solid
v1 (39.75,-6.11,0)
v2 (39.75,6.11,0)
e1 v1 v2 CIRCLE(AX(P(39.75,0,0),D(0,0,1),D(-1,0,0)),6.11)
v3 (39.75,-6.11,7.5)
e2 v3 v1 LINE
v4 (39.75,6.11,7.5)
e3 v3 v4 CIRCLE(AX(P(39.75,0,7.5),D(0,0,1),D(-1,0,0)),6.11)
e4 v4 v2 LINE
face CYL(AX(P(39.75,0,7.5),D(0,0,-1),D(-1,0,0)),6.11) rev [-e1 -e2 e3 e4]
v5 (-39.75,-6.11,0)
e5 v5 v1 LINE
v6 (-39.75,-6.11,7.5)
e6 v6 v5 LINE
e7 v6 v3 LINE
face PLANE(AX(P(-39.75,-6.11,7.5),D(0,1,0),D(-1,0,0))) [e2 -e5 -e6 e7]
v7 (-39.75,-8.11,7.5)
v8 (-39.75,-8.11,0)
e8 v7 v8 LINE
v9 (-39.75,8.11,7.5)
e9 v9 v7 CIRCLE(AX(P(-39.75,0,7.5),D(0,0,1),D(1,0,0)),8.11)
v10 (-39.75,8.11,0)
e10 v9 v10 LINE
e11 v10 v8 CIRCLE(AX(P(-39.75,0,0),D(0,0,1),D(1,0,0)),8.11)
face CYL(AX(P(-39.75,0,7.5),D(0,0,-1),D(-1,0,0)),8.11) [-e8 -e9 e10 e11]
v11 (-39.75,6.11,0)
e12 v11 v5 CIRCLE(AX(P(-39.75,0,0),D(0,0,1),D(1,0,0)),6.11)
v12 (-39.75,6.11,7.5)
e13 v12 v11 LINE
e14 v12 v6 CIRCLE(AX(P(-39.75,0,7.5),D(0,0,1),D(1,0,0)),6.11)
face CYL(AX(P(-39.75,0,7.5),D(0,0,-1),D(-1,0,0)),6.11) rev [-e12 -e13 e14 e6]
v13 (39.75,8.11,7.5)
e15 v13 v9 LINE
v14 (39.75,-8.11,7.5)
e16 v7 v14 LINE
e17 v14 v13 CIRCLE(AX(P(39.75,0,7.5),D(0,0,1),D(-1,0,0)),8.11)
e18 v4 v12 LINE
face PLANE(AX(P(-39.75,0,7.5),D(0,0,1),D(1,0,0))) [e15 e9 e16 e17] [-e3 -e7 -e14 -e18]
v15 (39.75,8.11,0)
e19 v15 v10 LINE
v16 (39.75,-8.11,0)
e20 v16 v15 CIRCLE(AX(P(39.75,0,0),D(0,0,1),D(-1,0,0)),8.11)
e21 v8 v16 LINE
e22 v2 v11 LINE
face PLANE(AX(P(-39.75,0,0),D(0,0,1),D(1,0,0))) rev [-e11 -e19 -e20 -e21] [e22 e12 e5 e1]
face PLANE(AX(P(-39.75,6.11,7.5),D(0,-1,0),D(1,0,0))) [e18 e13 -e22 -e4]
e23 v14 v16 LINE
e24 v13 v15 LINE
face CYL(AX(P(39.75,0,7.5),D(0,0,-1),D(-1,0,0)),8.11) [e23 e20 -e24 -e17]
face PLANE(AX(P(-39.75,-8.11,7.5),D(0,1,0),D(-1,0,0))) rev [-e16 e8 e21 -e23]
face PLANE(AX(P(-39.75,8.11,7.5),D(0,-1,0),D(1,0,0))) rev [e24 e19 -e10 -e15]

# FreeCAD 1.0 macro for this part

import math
import FreeCAD as App
import Part
import Sketcher

doc = App.newDocument("Part")
params = doc.addObject("Spreadsheet::Sheet", "Params")
for row, (alias, value) in enumerate([
    ("sketch1_radius", "8.11 mm"),
    ("sketch1_radius2", "6.11 mm"),
    ("sketch1_width", "79.5 mm"),
    ("pad1_length", "7.5 mm"),
], start=1):
    params.set(f"A{row}", alias)
    params.set(f"B{row}", "=" + value)
    params.setAlias(f"B{row}", alias)

body = doc.addObject("PartDesign::Body", "Body")

sketch1 = body.newObject("Sketcher::SketchObject", "Sketch")
sketch1.AttachmentSupport = (doc.getObject("XY_Plane"), [""])
sketch1.MapMode = "FlatFace"
sketch1.addGeometry(Part.LineSegment(App.Vector(40, 8, 0), App.Vector(-40, 8, 0)), False)
sketch1.addGeometry(Part.ArcOfCircle(Part.Circle(App.Vector(-40, 0, 0), App.Vector(0, 0, 1), 8), math.radians(90), math.radians(270)), False)
sketch1.addGeometry(Part.LineSegment(App.Vector(-40, -8, 0), App.Vector(40, -8, 0)), False)
sketch1.addGeometry(Part.ArcOfCircle(Part.Circle(App.Vector(40, 0, 0), App.Vector(0, 0, 1), 8), math.radians(-90), math.radians(90)), False)
sketch1.addGeometry(Part.LineSegment(App.Vector(-40, 6, 0), App.Vector(40, 6, 0)), False)
sketch1.addGeometry(Part.ArcOfCircle(Part.Circle(App.Vector(40, 0, 0), App.Vector(0, 0, 1), 6), math.radians(-90), math.radians(90)), False)
sketch1.addGeometry(Part.LineSegment(App.Vector(40, -6, 0), App.Vector(-40, -6, 0)), False)
sketch1.addGeometry(Part.ArcOfCircle(Part.Circle(App.Vector(-40, 0, 0), App.Vector(0, 0, 1), 6), math.radians(90), math.radians(270)), False)
sketch1.addConstraint(Sketcher.Constraint("Tangent", 0, 2, 1, 1))
sketch1.addConstraint(Sketcher.Constraint("Tangent", 1, 2, 2, 1))
sketch1.addConstraint(Sketcher.Constraint("Tangent", 2, 2, 3, 1))
sketch1.addConstraint(Sketcher.Constraint("Tangent", 3, 2, 0, 1))
sketch1.addConstraint(Sketcher.Constraint("Tangent", 4, 2, 5, 2))
sketch1.addConstraint(Sketcher.Constraint("Tangent", 5, 1, 6, 1))
sketch1.addConstraint(Sketcher.Constraint("Tangent", 6, 2, 7, 2))
sketch1.addConstraint(Sketcher.Constraint("Tangent", 7, 1, 4, 1))
sketch1.addConstraint(Sketcher.Constraint("Horizontal", 0))
sketch1.addConstraint(Sketcher.Constraint("Horizontal", 2))
sketch1.addConstraint(Sketcher.Constraint("Horizontal", 4))
sketch1.addConstraint(Sketcher.Constraint("Horizontal", 6))
sketch1.addConstraint(Sketcher.Constraint("Coincident", 5, 3, 3, 3))
sketch1.addConstraint(Sketcher.Constraint("Symmetric", 1, 3, 3, 3, -1, 1))
sketch1.addConstraint(Sketcher.Constraint("Vertical", 7, 3, 0, 2))
sketch1.addConstraint(Sketcher.Constraint("Radius", 1, 8.11))
sketch1.addConstraint(Sketcher.Constraint("Radius", 5, 6.11))
sketch1.addConstraint(Sketcher.Constraint("DistanceX", 0, 2, 0, 1, 79.5))
sketch1.setExpression("Constraints[15]", "Params.sketch1_radius")
sketch1.setExpression("Constraints[16]", "Params.sketch1_radius2")
sketch1.setExpression("Constraints[17]", "Params.sketch1_width")
pad1 = body.newObject("PartDesign::Pad", "Pad")
pad1.Profile = sketch1
pad1.setExpression("Length", "Params.pad1_length")

doc.recompute()
